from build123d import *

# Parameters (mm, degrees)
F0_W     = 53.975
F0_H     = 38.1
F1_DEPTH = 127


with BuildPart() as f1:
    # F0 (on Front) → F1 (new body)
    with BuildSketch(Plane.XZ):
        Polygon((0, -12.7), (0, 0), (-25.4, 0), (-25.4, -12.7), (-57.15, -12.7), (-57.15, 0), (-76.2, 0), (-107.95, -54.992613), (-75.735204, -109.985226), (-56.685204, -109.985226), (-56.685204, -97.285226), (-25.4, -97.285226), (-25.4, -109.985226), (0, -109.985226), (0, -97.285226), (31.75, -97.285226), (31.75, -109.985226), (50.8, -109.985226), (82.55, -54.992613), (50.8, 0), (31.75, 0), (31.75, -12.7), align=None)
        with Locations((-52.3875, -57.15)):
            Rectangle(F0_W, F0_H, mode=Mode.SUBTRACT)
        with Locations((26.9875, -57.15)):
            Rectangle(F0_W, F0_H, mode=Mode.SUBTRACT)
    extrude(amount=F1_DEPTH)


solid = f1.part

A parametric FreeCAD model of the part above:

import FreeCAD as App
import Part
import Sketcher

V = App.Vector
Q = App.Units.Quantity

doc = App.newDocument("Part")
body = doc.addObject("PartDesign::Body", "Body")

# Sketch on XZ plane
sketch1 = body.newObject("Sketcher::SketchObject", "Sketch")
sketch1.AttachmentSupport = (doc.getObject("XZ_Plane"), [""])
sketch1.MapMode = "FlatFace"
sketch1.addGeometry([
    Part.LineSegment(V(0, -13, 0), V(0, 0, 0)),  # 0
    Part.LineSegment(V(0, 0, 0), V(-25, 0, 0)),  # 1
    Part.LineSegment(V(-25, 0, 0), V(-25, -13, 0)),  # 2
    Part.LineSegment(V(-25, -13, 0), V(-57, -13, 0)),  # 3
    Part.LineSegment(V(-57, -13, 0), V(-57, 0, 0)),  # 4
    Part.LineSegment(V(-57, 0, 0), V(-76, 0, 0)),  # 5
    Part.LineSegment(V(-76, 0, 0), V(-108, -55, 0)),  # 6
    Part.LineSegment(V(-108, -55, 0), V(-76, -110, 0)),  # 7
    Part.LineSegment(V(-76, -110, 0), V(-57, -110, 0)),  # 8
    Part.LineSegment(V(-57, -110, 0), V(-57, -97, 0)),  # 9
    Part.LineSegment(V(-57, -97, 0), V(-25, -97, 0)),  # 10
    Part.LineSegment(V(-25, -97, 0), V(-25, -110, 0)),  # 11
    Part.LineSegment(V(-25, -110, 0), V(0, -110, 0)),  # 12
    Part.LineSegment(V(0, -110, 0), V(0, -97, 0)),  # 13
    Part.LineSegment(V(0, -97, 0), V(32, -97, 0)),  # 14
    Part.LineSegment(V(32, -97, 0), V(32, -110, 0)),  # 15
    Part.LineSegment(V(32, -110, 0), V(51, -110, 0)),  # 16
    Part.LineSegment(V(51, -110, 0), V(83, -55, 0)),  # 17
    Part.LineSegment(V(83, -55, 0), V(51, 0, 0)),  # 18
    Part.LineSegment(V(51, 0, 0), V(32, 0, 0)),  # 19
    Part.LineSegment(V(32, 0, 0), V(32, -13, 0)),  # 20
    Part.LineSegment(V(32, -13, 0), V(0, -13, 0)),  # 21
    Part.LineSegment(V(-25, -76, 0), V(-79, -76, 0)),  # 22
    Part.LineSegment(V(-79, -76, 0), V(-79, -38, 0)),  # 23
    Part.LineSegment(V(-79, -38, 0), V(-25, -38, 0)),  # 24
    Part.LineSegment(V(-25, -38, 0), V(-25, -76, 0)),  # 25
    Part.LineSegment(V(54, -76, 0), V(0, -76, 0)),  # 26
    Part.LineSegment(V(0, -76, 0), V(0, -38, 0)),  # 27
    Part.LineSegment(V(0, -38, 0), V(54, -38, 0)),  # 28
    Part.LineSegment(V(54, -38, 0), V(54, -76, 0)),  # 29
], False)
sketch1.addConstraint([
    Sketcher.Constraint("Coincident", 0, 2, 1, 1),
    Sketcher.Constraint("Coincident", 1, 2, 2, 1),
    Sketcher.Constraint("Coincident", 2, 2, 3, 1),
    Sketcher.Constraint("Coincident", 3, 2, 4, 1),
    Sketcher.Constraint("Coincident", 4, 2, 5, 1),
    Sketcher.Constraint("Coincident", 5, 2, 6, 1),
    Sketcher.Constraint("Coincident", 6, 2, 7, 1),
    Sketcher.Constraint("Coincident", 7, 2, 8, 1),
    Sketcher.Constraint("Coincident", 8, 2, 9, 1),
    Sketcher.Constraint("Coincident", 9, 2, 10, 1),
    Sketcher.Constraint("Coincident", 10, 2, 11, 1),
    Sketcher.Constraint("Coincident", 11, 2, 12, 1),
    Sketcher.Constraint("Coincident", 12, 2, 13, 1),
    Sketcher.Constraint("Coincident", 13, 2, 14, 1),
    Sketcher.Constraint("Coincident", 14, 2, 15, 1),
    Sketcher.Constraint("Coincident", 15, 2, 16, 1),
    Sketcher.Constraint("Coincident", 16, 2, 17, 1),
    Sketcher.Constraint("Coincident", 17, 2, 18, 1),
    Sketcher.Constraint("Coincident", 18, 2, 19, 1),
    Sketcher.Constraint("Coincident", 19, 2, 20, 1),
    Sketcher.Constraint("Coincident", 20, 2, 21, 1),
    Sketcher.Constraint("Coincident", 21, 2, 0, 1),
    Sketcher.Constraint("Coincident", 22, 2, 23, 1),
    Sketcher.Constraint("Coincident", 23, 2, 24, 1),
    Sketcher.Constraint("Coincident", 24, 2, 25, 1),
    Sketcher.Constraint("Coincident", 25, 2, 22, 1),
    Sketcher.Constraint("Coincident", 26, 2, 27, 1),
    Sketcher.Constraint("Coincident", 27, 2, 28, 1),
    Sketcher.Constraint("Coincident", 28, 2, 29, 1),
    Sketcher.Constraint("Coincident", 29, 2, 26, 1),
    Sketcher.Constraint("Vertical", 0),
    Sketcher.Constraint("Horizontal", 1),
    Sketcher.Constraint("Vertical", 2),
    Sketcher.Constraint("Horizontal", 3),
    Sketcher.Constraint("Vertical", 4),
    Sketcher.Constraint("Horizontal", 5),
    Sketcher.Constraint("Horizontal", 8),
    Sketcher.Constraint("Vertical", 9),
    Sketcher.Constraint("Horizontal", 10),
    Sketcher.Constraint("Vertical", 11),
    Sketcher.Constraint("Horizontal", 12),
    Sketcher.Constraint("Vertical", 13),
    Sketcher.Constraint("Horizontal", 14),
    Sketcher.Constraint("Vertical", 15),
    Sketcher.Constraint("Horizontal", 16),
    Sketcher.Constraint("Horizontal", 19),
    Sketcher.Constraint("Vertical", 20),
    Sketcher.Constraint("Horizontal", 21),
    Sketcher.Constraint("Horizontal", 22),
    Sketcher.Constraint("Vertical", 23),
    Sketcher.Constraint("Horizontal", 24),
    Sketcher.Constraint("Vertical", 25),
    Sketcher.Constraint("Horizontal", 26),
    Sketcher.Constraint("Vertical", 27),
    Sketcher.Constraint("Horizontal", 28),
    Sketcher.Constraint("Vertical", 29),
    Sketcher.Constraint("Coincident", 0, 2, -1, 1),
    Sketcher.Constraint("PointOnObject", 4, 2, -1),
    Sketcher.Constraint("PointOnObject", 12, 2, -2),
    Sketcher.Constraint("PointOnObject", 18, 2, -1),
    Sketcher.Constraint("PointOnObject", 26, 2, -2),
    Sketcher.Constraint("Parallel", 6, 17),
    Sketcher.Constraint("Horizontal", 8, 2, 11, 2),
    Sketcher.Constraint("Horizontal", 10, 2, 13, 2),
    Sketcher.Constraint("Horizontal", 12, 2, 15, 2),
    Sketcher.Constraint("Horizontal", 6, 2, 17, 2),
    Sketcher.Constraint("Horizontal", 3, 2, 20, 2),
    Sketcher.Constraint("Horizontal", 25, 2, 26, 2),
    Sketcher.Constraint("Horizontal", 24, 2, 27, 2),
    Sketcher.Constraint("Vertical", 2, 2, 10, 2),
    Sketcher.Constraint("Vertical", 16, 2, 18, 2),
    Sketcher.Constraint("Vertical", 15, 2, 19, 2),
    Sketcher.Constraint("Vertical", 11, 2, 24, 2),
    Sketcher.Constraint("Equal", 5, 8),
    Sketcher.Constraint("Equal", 3, 14),
    Sketcher.Constraint("Equal", 8, 16),
    Sketcher.Constraint("Equal", 24, 26),
    Sketcher.Constraint("Equal", 4, 9),
    Sketcher.Constraint("Equal", 6, 17),
    Sketcher.Constraint("DistanceX", 1, 2, 1, 1, Q("1 in")),
    Sketcher.Constraint("DistanceY", 0, 1, 0, 2, Q("0.5 in")),
    Sketcher.Constraint("DistanceY", 23, 1, 23, 2, Q("1.5 in")),
    Sketcher.Constraint("DistanceX", 5, 2, -1, 1, Q("3 in")),
    Sketcher.Constraint("DistanceY", 22, 2, -1, 1, Q("3 in")),
    Sketcher.Constraint("Angle", 6, Q("-120 deg")),
    Sketcher.Constraint("DistanceX", 6, 2, 3, 2, Q("2 in")),
    Sketcher.Constraint("Distance", 6, Q("2.5 in")),
    Sketcher.Constraint("DistanceX", 22, 2, 22, 1, Q("2.125 in")),
    Sketcher.Constraint("Distance", 7, 63.733669),
])
pad1 = body.newObject("PartDesign::Pad", "Pad")
pad1.Profile = sketch1
pad1.Length = Q("5 in")

doc.recompute()
